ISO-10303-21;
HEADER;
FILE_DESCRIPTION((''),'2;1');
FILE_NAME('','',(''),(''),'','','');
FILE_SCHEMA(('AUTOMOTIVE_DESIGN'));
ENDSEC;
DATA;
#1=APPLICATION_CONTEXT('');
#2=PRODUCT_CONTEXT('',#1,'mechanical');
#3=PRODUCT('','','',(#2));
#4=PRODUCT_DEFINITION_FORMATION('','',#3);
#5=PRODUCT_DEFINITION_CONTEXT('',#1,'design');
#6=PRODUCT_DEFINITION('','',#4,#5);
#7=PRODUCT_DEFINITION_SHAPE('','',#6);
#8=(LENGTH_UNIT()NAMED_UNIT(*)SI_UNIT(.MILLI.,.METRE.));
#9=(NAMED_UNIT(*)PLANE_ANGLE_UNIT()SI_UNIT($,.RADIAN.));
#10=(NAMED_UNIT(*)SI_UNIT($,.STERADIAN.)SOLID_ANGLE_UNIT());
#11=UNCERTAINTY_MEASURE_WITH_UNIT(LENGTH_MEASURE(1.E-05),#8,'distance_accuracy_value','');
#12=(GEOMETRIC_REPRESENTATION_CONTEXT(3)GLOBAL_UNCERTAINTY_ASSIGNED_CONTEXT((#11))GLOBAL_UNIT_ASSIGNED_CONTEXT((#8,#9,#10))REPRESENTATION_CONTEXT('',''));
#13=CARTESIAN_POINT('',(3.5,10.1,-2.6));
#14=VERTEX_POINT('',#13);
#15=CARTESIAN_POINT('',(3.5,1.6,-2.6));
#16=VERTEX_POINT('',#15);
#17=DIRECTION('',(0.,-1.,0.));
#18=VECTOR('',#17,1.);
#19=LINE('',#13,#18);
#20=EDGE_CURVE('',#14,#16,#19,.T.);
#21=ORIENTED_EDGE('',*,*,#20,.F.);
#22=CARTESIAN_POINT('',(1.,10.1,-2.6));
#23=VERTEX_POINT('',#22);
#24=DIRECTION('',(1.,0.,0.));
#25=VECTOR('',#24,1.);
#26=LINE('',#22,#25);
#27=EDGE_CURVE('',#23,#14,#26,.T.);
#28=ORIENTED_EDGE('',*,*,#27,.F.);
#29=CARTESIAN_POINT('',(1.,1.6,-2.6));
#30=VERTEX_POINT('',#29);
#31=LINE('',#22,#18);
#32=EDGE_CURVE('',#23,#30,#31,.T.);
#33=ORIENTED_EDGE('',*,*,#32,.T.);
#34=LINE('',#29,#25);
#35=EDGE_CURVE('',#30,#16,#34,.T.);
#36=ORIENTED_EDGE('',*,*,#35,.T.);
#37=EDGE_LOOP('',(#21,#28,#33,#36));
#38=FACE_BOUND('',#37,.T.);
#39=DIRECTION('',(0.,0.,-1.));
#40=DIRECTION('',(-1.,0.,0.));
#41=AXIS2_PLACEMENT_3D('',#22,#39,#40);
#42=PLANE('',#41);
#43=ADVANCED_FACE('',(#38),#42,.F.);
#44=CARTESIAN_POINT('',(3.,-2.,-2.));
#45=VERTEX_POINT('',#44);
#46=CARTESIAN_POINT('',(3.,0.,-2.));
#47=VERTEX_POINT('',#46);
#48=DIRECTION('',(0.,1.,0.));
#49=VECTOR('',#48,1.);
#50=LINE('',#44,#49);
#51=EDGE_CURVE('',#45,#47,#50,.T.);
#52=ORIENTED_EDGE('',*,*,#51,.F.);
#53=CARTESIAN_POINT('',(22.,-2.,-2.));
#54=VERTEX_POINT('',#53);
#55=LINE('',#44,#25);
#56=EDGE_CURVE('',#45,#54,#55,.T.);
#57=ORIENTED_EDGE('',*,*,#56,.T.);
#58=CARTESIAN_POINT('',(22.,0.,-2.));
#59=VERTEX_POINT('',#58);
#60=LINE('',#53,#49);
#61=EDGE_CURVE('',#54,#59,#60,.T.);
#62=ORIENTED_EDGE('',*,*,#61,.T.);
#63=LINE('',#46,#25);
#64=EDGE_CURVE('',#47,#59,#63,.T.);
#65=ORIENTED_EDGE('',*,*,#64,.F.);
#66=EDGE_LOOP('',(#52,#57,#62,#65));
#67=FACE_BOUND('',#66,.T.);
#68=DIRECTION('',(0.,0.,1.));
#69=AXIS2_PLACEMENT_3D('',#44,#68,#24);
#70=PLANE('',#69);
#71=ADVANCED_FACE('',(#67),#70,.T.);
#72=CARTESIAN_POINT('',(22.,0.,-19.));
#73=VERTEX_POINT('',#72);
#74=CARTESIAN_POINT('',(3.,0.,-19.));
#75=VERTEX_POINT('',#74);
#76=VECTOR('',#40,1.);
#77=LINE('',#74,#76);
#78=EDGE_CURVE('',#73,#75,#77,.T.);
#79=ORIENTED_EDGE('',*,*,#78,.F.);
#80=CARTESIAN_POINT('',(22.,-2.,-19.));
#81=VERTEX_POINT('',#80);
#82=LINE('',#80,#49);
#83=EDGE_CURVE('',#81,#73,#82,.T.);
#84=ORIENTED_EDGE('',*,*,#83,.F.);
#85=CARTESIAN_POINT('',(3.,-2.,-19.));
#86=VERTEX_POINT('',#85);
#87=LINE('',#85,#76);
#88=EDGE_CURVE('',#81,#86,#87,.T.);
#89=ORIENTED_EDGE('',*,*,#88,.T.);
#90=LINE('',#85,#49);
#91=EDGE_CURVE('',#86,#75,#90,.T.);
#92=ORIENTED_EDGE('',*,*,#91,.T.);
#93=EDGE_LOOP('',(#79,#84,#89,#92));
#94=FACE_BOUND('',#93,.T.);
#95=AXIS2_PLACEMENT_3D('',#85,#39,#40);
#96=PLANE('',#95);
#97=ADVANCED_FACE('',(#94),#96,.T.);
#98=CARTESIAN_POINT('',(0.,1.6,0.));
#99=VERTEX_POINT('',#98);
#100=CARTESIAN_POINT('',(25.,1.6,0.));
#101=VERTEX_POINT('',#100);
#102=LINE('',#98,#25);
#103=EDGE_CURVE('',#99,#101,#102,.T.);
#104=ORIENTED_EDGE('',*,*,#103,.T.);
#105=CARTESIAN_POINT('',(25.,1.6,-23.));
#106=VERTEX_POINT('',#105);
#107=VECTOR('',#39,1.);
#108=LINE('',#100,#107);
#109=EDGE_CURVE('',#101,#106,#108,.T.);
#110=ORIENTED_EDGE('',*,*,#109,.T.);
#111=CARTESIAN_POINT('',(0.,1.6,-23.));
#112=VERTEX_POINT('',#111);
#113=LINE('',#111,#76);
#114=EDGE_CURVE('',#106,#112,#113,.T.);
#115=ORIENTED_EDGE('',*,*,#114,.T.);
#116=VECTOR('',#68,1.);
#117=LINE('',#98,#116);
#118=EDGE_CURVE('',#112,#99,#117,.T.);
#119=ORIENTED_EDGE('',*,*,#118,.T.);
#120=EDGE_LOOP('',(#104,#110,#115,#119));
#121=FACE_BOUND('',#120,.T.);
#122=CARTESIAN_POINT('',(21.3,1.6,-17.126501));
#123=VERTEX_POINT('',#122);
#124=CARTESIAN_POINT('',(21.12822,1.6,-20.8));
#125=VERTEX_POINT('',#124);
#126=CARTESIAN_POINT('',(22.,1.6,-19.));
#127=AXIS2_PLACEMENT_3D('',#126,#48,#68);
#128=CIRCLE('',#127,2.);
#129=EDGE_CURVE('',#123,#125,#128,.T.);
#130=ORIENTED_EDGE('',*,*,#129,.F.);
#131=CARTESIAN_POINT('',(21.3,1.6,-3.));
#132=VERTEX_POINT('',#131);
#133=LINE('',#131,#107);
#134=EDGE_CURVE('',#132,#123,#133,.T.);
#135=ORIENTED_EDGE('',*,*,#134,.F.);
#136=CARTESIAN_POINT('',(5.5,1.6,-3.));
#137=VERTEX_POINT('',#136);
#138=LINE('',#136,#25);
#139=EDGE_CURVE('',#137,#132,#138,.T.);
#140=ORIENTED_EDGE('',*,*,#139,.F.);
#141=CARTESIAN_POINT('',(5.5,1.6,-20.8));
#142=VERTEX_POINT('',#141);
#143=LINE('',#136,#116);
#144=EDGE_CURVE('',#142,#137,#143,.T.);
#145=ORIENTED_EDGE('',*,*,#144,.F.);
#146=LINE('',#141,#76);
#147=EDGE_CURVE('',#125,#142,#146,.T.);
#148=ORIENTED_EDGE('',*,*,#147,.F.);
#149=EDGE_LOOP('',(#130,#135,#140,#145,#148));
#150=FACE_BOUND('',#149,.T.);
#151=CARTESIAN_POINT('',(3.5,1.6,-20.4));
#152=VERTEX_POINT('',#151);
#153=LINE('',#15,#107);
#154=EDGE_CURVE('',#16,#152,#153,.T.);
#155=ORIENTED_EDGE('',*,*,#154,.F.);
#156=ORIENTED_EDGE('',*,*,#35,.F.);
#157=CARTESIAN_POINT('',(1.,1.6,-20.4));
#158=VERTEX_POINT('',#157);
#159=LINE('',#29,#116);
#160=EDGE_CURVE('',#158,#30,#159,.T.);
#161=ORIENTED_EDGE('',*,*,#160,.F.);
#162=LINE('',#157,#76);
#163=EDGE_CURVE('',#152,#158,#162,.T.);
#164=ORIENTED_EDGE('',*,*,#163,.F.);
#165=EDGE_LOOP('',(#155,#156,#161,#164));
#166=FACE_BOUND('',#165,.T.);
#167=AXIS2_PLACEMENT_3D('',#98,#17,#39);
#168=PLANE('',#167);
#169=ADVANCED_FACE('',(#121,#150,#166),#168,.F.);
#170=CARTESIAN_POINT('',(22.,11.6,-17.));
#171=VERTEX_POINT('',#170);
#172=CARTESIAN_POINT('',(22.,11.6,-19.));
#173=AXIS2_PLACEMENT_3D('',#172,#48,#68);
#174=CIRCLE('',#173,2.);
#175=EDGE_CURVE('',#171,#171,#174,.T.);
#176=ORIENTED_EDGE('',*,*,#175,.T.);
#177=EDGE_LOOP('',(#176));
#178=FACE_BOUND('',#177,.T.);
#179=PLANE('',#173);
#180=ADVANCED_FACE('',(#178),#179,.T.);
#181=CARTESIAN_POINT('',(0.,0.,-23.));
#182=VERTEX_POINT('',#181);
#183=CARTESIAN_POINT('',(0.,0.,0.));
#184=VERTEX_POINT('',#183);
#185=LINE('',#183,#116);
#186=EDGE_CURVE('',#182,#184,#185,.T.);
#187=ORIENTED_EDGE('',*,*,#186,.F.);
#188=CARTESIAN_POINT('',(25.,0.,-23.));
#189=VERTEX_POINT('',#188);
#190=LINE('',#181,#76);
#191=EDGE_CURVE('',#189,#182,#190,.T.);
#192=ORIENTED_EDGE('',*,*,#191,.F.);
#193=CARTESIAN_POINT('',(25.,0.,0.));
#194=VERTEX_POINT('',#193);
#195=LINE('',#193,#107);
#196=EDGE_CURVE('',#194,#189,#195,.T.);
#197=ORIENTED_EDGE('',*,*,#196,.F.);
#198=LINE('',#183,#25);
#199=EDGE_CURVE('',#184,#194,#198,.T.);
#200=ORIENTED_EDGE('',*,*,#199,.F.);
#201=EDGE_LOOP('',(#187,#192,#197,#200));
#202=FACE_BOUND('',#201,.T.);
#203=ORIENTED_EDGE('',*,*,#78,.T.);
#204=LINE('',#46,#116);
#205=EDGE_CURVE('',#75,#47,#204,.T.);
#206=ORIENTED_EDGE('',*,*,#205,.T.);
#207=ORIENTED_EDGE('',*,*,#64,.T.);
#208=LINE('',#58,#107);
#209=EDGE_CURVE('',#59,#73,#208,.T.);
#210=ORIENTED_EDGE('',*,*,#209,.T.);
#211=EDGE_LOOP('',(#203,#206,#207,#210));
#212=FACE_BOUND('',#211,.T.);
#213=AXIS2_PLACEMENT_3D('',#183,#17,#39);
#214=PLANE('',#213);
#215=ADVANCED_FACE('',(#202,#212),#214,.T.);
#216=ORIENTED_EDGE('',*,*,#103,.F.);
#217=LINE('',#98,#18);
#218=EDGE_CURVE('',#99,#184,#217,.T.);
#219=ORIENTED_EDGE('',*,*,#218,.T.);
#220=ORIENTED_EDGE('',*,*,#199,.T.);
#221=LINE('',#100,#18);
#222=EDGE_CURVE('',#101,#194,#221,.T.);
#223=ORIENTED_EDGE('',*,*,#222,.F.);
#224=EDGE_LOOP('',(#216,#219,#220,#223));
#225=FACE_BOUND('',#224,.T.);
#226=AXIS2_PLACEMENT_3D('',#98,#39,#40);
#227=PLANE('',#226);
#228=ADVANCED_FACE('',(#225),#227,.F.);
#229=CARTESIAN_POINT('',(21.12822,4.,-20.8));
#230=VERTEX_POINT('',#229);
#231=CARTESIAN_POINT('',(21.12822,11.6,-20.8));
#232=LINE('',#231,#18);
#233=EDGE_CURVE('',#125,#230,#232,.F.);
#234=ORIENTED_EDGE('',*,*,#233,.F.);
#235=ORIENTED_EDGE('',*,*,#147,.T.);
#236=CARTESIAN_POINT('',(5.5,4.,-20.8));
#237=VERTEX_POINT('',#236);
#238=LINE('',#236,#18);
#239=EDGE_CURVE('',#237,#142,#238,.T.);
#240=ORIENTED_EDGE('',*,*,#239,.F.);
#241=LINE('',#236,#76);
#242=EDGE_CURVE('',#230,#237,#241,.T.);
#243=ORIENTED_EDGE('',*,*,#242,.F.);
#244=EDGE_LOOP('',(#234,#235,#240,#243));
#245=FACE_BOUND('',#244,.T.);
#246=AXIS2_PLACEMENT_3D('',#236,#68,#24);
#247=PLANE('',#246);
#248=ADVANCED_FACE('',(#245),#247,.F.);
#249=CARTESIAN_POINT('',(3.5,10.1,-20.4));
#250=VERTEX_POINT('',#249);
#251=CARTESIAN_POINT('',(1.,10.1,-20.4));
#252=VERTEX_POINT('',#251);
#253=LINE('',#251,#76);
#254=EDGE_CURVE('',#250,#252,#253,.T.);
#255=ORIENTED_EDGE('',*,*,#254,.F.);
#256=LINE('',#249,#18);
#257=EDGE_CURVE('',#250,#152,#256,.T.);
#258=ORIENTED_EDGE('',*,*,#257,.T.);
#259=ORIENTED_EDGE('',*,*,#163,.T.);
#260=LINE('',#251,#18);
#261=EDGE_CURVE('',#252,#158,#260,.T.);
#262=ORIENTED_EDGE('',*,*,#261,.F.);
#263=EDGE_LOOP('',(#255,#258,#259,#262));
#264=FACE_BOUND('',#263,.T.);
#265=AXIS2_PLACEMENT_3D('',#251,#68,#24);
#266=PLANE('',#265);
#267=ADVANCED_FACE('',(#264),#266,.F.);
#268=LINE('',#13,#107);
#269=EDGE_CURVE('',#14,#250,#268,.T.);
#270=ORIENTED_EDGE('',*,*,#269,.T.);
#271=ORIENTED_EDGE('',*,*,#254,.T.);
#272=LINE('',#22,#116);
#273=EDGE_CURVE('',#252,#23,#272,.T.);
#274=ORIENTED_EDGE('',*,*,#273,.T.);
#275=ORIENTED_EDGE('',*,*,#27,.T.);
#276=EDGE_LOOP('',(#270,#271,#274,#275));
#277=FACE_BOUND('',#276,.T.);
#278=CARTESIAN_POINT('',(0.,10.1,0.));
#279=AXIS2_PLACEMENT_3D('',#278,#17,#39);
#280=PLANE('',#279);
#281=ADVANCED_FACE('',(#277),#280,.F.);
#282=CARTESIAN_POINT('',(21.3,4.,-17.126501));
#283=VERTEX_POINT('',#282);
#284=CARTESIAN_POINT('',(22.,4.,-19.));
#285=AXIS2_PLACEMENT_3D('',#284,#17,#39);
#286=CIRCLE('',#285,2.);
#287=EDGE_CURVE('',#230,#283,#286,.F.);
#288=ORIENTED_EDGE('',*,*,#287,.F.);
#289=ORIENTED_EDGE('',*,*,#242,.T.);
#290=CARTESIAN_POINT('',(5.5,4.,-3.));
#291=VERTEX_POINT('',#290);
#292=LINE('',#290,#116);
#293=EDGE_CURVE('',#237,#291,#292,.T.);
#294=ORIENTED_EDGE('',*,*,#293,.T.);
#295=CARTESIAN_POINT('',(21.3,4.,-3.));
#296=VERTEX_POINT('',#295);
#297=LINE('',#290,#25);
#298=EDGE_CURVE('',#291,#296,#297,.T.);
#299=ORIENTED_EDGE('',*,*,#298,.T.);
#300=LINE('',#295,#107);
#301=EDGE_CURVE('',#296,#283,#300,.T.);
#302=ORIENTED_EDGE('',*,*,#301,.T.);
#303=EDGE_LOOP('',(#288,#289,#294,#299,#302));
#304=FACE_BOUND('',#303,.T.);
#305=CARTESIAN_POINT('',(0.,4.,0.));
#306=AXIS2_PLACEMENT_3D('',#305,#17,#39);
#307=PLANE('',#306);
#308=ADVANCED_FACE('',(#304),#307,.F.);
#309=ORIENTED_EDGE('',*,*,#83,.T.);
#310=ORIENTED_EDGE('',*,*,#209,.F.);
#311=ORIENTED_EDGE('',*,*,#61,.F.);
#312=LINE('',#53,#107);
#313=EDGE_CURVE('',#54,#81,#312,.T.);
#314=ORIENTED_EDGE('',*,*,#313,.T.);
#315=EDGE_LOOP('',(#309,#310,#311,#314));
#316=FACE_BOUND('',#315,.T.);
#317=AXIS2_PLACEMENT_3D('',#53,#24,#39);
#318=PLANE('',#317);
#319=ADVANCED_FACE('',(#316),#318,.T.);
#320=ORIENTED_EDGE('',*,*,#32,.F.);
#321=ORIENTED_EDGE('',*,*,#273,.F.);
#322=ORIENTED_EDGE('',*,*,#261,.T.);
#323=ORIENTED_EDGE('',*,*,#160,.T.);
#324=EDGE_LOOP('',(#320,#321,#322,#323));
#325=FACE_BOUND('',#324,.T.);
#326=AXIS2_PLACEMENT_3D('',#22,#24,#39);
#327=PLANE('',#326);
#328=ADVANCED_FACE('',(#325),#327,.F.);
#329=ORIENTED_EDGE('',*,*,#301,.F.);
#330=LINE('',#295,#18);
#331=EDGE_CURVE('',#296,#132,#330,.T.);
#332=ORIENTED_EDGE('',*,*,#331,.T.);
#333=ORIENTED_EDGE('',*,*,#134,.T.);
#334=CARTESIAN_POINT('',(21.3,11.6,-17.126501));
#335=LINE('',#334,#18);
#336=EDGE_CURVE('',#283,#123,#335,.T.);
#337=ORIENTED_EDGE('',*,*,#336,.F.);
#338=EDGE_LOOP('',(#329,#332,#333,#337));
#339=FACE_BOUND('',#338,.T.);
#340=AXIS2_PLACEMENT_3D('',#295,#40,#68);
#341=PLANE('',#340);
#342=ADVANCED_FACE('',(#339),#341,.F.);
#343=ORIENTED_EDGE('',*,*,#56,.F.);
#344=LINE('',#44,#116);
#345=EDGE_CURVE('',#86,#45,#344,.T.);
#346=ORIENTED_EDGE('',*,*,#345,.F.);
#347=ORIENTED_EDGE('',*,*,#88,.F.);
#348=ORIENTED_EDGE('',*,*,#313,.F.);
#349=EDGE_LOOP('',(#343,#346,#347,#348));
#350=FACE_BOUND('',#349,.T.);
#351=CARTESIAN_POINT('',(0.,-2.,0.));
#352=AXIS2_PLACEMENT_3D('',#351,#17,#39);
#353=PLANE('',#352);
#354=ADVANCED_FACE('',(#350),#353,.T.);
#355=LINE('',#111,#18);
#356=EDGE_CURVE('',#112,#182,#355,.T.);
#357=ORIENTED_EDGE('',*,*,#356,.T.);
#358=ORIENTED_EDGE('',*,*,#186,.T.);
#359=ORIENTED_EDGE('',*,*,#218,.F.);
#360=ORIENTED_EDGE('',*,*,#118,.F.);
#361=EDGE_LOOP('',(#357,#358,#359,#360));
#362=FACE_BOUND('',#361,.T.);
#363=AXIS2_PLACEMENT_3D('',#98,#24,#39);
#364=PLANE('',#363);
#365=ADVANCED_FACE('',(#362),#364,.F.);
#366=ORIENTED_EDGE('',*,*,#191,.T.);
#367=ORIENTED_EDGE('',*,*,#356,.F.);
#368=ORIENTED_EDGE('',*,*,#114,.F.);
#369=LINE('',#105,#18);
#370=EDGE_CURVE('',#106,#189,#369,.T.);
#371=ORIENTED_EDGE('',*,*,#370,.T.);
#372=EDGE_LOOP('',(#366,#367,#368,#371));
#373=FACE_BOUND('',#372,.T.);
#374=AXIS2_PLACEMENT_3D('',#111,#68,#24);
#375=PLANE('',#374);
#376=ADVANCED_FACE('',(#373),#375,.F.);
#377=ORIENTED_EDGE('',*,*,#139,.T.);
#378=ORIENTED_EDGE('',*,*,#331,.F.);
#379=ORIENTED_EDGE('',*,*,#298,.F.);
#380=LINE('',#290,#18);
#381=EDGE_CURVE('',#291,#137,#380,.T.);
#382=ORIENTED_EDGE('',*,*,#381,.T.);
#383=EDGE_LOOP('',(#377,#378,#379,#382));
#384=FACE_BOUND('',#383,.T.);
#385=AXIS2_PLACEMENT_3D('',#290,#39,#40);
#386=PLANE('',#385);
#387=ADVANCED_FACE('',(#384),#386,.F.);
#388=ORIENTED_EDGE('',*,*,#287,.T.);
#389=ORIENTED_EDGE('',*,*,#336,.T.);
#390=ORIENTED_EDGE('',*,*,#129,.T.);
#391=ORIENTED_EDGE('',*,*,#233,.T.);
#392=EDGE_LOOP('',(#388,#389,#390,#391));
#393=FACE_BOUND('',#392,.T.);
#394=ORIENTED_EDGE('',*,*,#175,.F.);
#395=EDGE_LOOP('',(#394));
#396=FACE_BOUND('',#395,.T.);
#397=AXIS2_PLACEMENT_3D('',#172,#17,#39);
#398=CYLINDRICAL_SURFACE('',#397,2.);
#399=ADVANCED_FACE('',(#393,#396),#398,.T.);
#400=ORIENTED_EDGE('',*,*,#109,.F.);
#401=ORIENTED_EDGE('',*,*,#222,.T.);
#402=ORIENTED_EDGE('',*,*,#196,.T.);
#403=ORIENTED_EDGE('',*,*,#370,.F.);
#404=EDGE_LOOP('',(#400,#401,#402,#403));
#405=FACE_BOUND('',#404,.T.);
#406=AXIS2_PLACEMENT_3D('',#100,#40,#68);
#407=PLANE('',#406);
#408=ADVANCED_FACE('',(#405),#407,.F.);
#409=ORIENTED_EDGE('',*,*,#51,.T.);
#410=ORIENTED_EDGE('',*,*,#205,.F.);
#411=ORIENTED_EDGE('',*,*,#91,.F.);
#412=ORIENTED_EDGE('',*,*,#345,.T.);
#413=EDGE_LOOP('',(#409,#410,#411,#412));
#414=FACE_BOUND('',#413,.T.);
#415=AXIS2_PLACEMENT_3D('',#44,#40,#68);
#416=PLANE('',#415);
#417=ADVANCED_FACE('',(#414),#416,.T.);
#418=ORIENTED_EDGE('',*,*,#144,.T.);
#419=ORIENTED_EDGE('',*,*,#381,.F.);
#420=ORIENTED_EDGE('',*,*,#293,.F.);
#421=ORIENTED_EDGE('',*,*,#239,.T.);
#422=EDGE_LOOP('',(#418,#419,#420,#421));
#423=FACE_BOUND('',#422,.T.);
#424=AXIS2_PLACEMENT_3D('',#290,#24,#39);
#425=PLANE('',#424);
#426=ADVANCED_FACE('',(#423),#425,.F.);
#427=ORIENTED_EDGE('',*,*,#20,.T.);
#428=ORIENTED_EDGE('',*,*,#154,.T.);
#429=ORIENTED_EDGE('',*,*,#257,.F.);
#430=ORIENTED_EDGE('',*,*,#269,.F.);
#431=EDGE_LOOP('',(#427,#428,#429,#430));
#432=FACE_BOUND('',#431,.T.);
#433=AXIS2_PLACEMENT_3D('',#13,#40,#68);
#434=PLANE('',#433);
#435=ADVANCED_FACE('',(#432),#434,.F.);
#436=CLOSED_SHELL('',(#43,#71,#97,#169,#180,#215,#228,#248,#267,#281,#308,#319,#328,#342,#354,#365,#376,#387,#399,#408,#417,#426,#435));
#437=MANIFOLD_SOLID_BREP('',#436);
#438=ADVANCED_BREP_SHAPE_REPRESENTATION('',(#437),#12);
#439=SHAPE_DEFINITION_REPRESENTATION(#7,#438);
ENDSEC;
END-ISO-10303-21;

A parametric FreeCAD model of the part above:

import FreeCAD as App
import Part
import Sketcher
from FreeCAD import Vector
Q = App.Units.Quantity

doc = App.newDocument("Part")
body = doc.addObject("PartDesign::Body", "Body")

# Sketch on XZ plane
sketch1 = body.newObject("Sketcher::SketchObject", "Sketch")
sketch1.AttachmentSupport = (doc.getObject("XZ_Plane"), [""])
sketch1.MapMode = "FlatFace"
sketch1.addGeometry(Part.LineSegment(Vector(0, -23, 0), Vector(0, 0, 0)), False)
sketch1.addGeometry(Part.LineSegment(Vector(0, 0, 0), Vector(25, 0, 0)), False)
sketch1.addGeometry(Part.LineSegment(Vector(25, 0, 0), Vector(25, -23, 0)), False)
sketch1.addGeometry(Part.LineSegment(Vector(25, -23, 0), Vector(0, -23, 0)), False)
sketch1.addConstraint(Sketcher.Constraint("Coincident", 0, 2, 1, 1))
sketch1.addConstraint(Sketcher.Constraint("Coincident", 1, 2, 2, 1))
sketch1.addConstraint(Sketcher.Constraint("Coincident", 2, 2, 3, 1))
sketch1.addConstraint(Sketcher.Constraint("Coincident", 3, 2, 0, 1))
sketch1.addConstraint(Sketcher.Constraint("Vertical", 0))
sketch1.addConstraint(Sketcher.Constraint("Horizontal", 1))
sketch1.addConstraint(Sketcher.Constraint("Vertical", 2))
sketch1.addConstraint(Sketcher.Constraint("Horizontal", 3))
sketch1.addConstraint(Sketcher.Constraint("Coincident", 0, 2, -1, 1))
sketch1.addConstraint(Sketcher.Constraint("DistanceX", 1, 1, 1, 2, Q("25 mm")))
sketch1.addConstraint(Sketcher.Constraint("DistanceY", 0, 1, 0, 2, Q("23 mm")))
pad1 = body.newObject("PartDesign::Pad", "Pad")
pad1.Profile = sketch1
pad1.Length = 1.6
pad1.Reversed = True

# Sketch on XZ plane
sketch2 = body.newObject("Sketcher::SketchObject", "Sketch001")
sketch2.AttachmentSupport = (doc.getObject("XZ_Plane"), [""])
sketch2.MapMode = "FlatFace"
sketch2.AttachmentOffset = App.Placement(Vector(0, 0, -1.6), App.Rotation())
sketch2.addGeometry(Part.LineSegment(Vector(6, -21, 0), Vector(6, -3, 0)), False)
sketch2.addGeometry(Part.LineSegment(Vector(6, -3, 0), Vector(21, -3, 0)), False)
sketch2.addGeometry(Part.LineSegment(Vector(21, -3, 0), Vector(21, -21, 0)), False)
sketch2.addGeometry(Part.LineSegment(Vector(21, -21, 0), Vector(6, -21, 0)), False)
sketch2.addConstraint(Sketcher.Constraint("Coincident", 0, 2, 1, 1))
sketch2.addConstraint(Sketcher.Constraint("Coincident", 1, 2, 2, 1))
sketch2.addConstraint(Sketcher.Constraint("Coincident", 2, 2, 3, 1))
sketch2.addConstraint(Sketcher.Constraint("Coincident", 3, 2, 0, 1))
sketch2.addConstraint(Sketcher.Constraint("Vertical", 0))
sketch2.addConstraint(Sketcher.Constraint("Horizontal", 1))
sketch2.addConstraint(Sketcher.Constraint("Vertical", 2))
sketch2.addConstraint(Sketcher.Constraint("Horizontal", 3))
sketch2.addConstraint(Sketcher.Constraint("DistanceX", 1, 1, 1, 2, Q("15.8 mm")))
sketch2.addConstraint(Sketcher.Constraint("DistanceY", 0, 1, 0, 2, Q("17.8 mm")))
sketch2.addConstraint(Sketcher.Constraint("DistanceY", 0, 2, -1, 1, Q("3 mm")))
sketch2.addConstraint(Sketcher.Constraint("DistanceX", -1, 1, 0, 2, Q("5.5 mm")))
pad2 = body.newObject("PartDesign::Pad", "Pad001")
pad2.Profile = sketch2
pad2.Length = 2.4
pad2.Reversed = True

# Sketch on XZ plane
sketch3 = body.newObject("Sketcher::SketchObject", "Sketch002")
sketch3.AttachmentSupport = (doc.getObject("XZ_Plane"), [""])
sketch3.MapMode = "FlatFace"
sketch3.AttachmentOffset = App.Placement(Vector(0, 0, -1.6), App.Rotation())
sketch3.addGeometry(Part.LineSegment(Vector(1, -20.4, 0), Vector(1, -2.6, 0)), False)
sketch3.addGeometry(Part.LineSegment(Vector(1, -2.6, 0), Vector(3.5, -2.6, 0)), False)
sketch3.addGeometry(Part.LineSegment(Vector(3.5, -2.6, 0), Vector(3.5, -20.4, 0)), False)
sketch3.addGeometry(Part.LineSegment(Vector(3.5, -20.4, 0), Vector(1, -20.4, 0)), False)
sketch3.addConstraint(Sketcher.Constraint("Coincident", 0, 2, 1, 1))
sketch3.addConstraint(Sketcher.Constraint("Coincident", 1, 2, 2, 1))
sketch3.addConstraint(Sketcher.Constraint("Coincident", 2, 2, 3, 1))
sketch3.addConstraint(Sketcher.Constraint("Coincident", 3, 2, 0, 1))
sketch3.addConstraint(Sketcher.Constraint("Vertical", 0))
sketch3.addConstraint(Sketcher.Constraint("Horizontal", 1))
sketch3.addConstraint(Sketcher.Constraint("Vertical", 2))
sketch3.addConstraint(Sketcher.Constraint("Horizontal", 3))
sketch3.addConstraint(Sketcher.Constraint("DistanceX", 1, 1, 1, 2, Q("2.5 mm")))
sketch3.addConstraint(Sketcher.Constraint("DistanceY", 0, 1, 0, 2, Q("17.8 mm")))
sketch3.addConstraint(Sketcher.Constraint("DistanceX", -1, 1, 0, 2, Q("1 mm")))
sketch3.addConstraint(Sketcher.Constraint("DistanceY", 0, 2, -1, 1, Q("2.6 mm")))
pad3 = body.newObject("PartDesign::Pad", "Pad002")
pad3.Profile = sketch3
pad3.Length = 8.5
pad3.Reversed = True

# Sketch on XZ plane
sketch4 = body.newObject("Sketcher::SketchObject", "Sketch003")
sketch4.AttachmentSupport = (doc.getObject("XZ_Plane"), [""])
sketch4.MapMode = "FlatFace"
sketch4.AttachmentOffset = App.Placement(Vector(0, 0, -1.6), App.Rotation())
sketch4.addGeometry(Part.Circle(Vector(22, -19, 0), Vector(0, 0, 1), 2), False)
sketch4.addConstraint(Sketcher.Constraint("Diameter", 0, Q("4 mm")))
sketch4.addConstraint(Sketcher.Constraint("DistanceX", -1, 1, 0, 3, Q("22 mm")))
sketch4.addConstraint(Sketcher.Constraint("DistanceY", 0, 3, -1, 1, Q("19 mm")))
pad4 = body.newObject("PartDesign::Pad", "Pad003")
pad4.Profile = sketch4
pad4.Length = 10
pad4.Reversed = True

# Sketch on XZ plane
sketch5 = body.newObject("Sketcher::SketchObject", "Sketch004")
sketch5.AttachmentSupport = (doc.getObject("XZ_Plane"), [""])
sketch5.MapMode = "FlatFace"
sketch5.addGeometry(Part.LineSegment(Vector(3, -19, 0), Vector(3, -2, 0)), False)
sketch5.addGeometry(Part.LineSegment(Vector(3, -2, 0), Vector(22, -2, 0)), False)
sketch5.addGeometry(Part.LineSegment(Vector(22, -2, 0), Vector(22, -19, 0)), False)
sketch5.addGeometry(Part.LineSegment(Vector(22, -19, 0), Vector(3, -19, 0)), False)
sketch5.addConstraint(Sketcher.Constraint("Coincident", 0, 2, 1, 1))
sketch5.addConstraint(Sketcher.Constraint("Coincident", 1, 2, 2, 1))
sketch5.addConstraint(Sketcher.Constraint("Coincident", 2, 2, 3, 1))
sketch5.addConstraint(Sketcher.Constraint("Coincident", 3, 2, 0, 1))
sketch5.addConstraint(Sketcher.Constraint("Vertical", 0))
sketch5.addConstraint(Sketcher.Constraint("Horizontal", 1))
sketch5.addConstraint(Sketcher.Constraint("Vertical", 2))
sketch5.addConstraint(Sketcher.Constraint("Horizontal", 3))
sketch5.addConstraint(Sketcher.Constraint("DistanceX", 1, 1, 1, 2, Q("19 mm")))
sketch5.addConstraint(Sketcher.Constraint("DistanceY", 0, 1, 0, 2, Q("17 mm")))
sketch5.addConstraint(Sketcher.Constraint("DistanceX", -1, 1, 0, 2, Q("3 mm")))
sketch5.addConstraint(Sketcher.Constraint("DistanceY", 0, 2, -1, 1, Q("2 mm")))
pad5 = body.newObject("PartDesign::Pad", "Pad004")
pad5.Profile = sketch5
pad5.Length = 2

doc.recompute()
